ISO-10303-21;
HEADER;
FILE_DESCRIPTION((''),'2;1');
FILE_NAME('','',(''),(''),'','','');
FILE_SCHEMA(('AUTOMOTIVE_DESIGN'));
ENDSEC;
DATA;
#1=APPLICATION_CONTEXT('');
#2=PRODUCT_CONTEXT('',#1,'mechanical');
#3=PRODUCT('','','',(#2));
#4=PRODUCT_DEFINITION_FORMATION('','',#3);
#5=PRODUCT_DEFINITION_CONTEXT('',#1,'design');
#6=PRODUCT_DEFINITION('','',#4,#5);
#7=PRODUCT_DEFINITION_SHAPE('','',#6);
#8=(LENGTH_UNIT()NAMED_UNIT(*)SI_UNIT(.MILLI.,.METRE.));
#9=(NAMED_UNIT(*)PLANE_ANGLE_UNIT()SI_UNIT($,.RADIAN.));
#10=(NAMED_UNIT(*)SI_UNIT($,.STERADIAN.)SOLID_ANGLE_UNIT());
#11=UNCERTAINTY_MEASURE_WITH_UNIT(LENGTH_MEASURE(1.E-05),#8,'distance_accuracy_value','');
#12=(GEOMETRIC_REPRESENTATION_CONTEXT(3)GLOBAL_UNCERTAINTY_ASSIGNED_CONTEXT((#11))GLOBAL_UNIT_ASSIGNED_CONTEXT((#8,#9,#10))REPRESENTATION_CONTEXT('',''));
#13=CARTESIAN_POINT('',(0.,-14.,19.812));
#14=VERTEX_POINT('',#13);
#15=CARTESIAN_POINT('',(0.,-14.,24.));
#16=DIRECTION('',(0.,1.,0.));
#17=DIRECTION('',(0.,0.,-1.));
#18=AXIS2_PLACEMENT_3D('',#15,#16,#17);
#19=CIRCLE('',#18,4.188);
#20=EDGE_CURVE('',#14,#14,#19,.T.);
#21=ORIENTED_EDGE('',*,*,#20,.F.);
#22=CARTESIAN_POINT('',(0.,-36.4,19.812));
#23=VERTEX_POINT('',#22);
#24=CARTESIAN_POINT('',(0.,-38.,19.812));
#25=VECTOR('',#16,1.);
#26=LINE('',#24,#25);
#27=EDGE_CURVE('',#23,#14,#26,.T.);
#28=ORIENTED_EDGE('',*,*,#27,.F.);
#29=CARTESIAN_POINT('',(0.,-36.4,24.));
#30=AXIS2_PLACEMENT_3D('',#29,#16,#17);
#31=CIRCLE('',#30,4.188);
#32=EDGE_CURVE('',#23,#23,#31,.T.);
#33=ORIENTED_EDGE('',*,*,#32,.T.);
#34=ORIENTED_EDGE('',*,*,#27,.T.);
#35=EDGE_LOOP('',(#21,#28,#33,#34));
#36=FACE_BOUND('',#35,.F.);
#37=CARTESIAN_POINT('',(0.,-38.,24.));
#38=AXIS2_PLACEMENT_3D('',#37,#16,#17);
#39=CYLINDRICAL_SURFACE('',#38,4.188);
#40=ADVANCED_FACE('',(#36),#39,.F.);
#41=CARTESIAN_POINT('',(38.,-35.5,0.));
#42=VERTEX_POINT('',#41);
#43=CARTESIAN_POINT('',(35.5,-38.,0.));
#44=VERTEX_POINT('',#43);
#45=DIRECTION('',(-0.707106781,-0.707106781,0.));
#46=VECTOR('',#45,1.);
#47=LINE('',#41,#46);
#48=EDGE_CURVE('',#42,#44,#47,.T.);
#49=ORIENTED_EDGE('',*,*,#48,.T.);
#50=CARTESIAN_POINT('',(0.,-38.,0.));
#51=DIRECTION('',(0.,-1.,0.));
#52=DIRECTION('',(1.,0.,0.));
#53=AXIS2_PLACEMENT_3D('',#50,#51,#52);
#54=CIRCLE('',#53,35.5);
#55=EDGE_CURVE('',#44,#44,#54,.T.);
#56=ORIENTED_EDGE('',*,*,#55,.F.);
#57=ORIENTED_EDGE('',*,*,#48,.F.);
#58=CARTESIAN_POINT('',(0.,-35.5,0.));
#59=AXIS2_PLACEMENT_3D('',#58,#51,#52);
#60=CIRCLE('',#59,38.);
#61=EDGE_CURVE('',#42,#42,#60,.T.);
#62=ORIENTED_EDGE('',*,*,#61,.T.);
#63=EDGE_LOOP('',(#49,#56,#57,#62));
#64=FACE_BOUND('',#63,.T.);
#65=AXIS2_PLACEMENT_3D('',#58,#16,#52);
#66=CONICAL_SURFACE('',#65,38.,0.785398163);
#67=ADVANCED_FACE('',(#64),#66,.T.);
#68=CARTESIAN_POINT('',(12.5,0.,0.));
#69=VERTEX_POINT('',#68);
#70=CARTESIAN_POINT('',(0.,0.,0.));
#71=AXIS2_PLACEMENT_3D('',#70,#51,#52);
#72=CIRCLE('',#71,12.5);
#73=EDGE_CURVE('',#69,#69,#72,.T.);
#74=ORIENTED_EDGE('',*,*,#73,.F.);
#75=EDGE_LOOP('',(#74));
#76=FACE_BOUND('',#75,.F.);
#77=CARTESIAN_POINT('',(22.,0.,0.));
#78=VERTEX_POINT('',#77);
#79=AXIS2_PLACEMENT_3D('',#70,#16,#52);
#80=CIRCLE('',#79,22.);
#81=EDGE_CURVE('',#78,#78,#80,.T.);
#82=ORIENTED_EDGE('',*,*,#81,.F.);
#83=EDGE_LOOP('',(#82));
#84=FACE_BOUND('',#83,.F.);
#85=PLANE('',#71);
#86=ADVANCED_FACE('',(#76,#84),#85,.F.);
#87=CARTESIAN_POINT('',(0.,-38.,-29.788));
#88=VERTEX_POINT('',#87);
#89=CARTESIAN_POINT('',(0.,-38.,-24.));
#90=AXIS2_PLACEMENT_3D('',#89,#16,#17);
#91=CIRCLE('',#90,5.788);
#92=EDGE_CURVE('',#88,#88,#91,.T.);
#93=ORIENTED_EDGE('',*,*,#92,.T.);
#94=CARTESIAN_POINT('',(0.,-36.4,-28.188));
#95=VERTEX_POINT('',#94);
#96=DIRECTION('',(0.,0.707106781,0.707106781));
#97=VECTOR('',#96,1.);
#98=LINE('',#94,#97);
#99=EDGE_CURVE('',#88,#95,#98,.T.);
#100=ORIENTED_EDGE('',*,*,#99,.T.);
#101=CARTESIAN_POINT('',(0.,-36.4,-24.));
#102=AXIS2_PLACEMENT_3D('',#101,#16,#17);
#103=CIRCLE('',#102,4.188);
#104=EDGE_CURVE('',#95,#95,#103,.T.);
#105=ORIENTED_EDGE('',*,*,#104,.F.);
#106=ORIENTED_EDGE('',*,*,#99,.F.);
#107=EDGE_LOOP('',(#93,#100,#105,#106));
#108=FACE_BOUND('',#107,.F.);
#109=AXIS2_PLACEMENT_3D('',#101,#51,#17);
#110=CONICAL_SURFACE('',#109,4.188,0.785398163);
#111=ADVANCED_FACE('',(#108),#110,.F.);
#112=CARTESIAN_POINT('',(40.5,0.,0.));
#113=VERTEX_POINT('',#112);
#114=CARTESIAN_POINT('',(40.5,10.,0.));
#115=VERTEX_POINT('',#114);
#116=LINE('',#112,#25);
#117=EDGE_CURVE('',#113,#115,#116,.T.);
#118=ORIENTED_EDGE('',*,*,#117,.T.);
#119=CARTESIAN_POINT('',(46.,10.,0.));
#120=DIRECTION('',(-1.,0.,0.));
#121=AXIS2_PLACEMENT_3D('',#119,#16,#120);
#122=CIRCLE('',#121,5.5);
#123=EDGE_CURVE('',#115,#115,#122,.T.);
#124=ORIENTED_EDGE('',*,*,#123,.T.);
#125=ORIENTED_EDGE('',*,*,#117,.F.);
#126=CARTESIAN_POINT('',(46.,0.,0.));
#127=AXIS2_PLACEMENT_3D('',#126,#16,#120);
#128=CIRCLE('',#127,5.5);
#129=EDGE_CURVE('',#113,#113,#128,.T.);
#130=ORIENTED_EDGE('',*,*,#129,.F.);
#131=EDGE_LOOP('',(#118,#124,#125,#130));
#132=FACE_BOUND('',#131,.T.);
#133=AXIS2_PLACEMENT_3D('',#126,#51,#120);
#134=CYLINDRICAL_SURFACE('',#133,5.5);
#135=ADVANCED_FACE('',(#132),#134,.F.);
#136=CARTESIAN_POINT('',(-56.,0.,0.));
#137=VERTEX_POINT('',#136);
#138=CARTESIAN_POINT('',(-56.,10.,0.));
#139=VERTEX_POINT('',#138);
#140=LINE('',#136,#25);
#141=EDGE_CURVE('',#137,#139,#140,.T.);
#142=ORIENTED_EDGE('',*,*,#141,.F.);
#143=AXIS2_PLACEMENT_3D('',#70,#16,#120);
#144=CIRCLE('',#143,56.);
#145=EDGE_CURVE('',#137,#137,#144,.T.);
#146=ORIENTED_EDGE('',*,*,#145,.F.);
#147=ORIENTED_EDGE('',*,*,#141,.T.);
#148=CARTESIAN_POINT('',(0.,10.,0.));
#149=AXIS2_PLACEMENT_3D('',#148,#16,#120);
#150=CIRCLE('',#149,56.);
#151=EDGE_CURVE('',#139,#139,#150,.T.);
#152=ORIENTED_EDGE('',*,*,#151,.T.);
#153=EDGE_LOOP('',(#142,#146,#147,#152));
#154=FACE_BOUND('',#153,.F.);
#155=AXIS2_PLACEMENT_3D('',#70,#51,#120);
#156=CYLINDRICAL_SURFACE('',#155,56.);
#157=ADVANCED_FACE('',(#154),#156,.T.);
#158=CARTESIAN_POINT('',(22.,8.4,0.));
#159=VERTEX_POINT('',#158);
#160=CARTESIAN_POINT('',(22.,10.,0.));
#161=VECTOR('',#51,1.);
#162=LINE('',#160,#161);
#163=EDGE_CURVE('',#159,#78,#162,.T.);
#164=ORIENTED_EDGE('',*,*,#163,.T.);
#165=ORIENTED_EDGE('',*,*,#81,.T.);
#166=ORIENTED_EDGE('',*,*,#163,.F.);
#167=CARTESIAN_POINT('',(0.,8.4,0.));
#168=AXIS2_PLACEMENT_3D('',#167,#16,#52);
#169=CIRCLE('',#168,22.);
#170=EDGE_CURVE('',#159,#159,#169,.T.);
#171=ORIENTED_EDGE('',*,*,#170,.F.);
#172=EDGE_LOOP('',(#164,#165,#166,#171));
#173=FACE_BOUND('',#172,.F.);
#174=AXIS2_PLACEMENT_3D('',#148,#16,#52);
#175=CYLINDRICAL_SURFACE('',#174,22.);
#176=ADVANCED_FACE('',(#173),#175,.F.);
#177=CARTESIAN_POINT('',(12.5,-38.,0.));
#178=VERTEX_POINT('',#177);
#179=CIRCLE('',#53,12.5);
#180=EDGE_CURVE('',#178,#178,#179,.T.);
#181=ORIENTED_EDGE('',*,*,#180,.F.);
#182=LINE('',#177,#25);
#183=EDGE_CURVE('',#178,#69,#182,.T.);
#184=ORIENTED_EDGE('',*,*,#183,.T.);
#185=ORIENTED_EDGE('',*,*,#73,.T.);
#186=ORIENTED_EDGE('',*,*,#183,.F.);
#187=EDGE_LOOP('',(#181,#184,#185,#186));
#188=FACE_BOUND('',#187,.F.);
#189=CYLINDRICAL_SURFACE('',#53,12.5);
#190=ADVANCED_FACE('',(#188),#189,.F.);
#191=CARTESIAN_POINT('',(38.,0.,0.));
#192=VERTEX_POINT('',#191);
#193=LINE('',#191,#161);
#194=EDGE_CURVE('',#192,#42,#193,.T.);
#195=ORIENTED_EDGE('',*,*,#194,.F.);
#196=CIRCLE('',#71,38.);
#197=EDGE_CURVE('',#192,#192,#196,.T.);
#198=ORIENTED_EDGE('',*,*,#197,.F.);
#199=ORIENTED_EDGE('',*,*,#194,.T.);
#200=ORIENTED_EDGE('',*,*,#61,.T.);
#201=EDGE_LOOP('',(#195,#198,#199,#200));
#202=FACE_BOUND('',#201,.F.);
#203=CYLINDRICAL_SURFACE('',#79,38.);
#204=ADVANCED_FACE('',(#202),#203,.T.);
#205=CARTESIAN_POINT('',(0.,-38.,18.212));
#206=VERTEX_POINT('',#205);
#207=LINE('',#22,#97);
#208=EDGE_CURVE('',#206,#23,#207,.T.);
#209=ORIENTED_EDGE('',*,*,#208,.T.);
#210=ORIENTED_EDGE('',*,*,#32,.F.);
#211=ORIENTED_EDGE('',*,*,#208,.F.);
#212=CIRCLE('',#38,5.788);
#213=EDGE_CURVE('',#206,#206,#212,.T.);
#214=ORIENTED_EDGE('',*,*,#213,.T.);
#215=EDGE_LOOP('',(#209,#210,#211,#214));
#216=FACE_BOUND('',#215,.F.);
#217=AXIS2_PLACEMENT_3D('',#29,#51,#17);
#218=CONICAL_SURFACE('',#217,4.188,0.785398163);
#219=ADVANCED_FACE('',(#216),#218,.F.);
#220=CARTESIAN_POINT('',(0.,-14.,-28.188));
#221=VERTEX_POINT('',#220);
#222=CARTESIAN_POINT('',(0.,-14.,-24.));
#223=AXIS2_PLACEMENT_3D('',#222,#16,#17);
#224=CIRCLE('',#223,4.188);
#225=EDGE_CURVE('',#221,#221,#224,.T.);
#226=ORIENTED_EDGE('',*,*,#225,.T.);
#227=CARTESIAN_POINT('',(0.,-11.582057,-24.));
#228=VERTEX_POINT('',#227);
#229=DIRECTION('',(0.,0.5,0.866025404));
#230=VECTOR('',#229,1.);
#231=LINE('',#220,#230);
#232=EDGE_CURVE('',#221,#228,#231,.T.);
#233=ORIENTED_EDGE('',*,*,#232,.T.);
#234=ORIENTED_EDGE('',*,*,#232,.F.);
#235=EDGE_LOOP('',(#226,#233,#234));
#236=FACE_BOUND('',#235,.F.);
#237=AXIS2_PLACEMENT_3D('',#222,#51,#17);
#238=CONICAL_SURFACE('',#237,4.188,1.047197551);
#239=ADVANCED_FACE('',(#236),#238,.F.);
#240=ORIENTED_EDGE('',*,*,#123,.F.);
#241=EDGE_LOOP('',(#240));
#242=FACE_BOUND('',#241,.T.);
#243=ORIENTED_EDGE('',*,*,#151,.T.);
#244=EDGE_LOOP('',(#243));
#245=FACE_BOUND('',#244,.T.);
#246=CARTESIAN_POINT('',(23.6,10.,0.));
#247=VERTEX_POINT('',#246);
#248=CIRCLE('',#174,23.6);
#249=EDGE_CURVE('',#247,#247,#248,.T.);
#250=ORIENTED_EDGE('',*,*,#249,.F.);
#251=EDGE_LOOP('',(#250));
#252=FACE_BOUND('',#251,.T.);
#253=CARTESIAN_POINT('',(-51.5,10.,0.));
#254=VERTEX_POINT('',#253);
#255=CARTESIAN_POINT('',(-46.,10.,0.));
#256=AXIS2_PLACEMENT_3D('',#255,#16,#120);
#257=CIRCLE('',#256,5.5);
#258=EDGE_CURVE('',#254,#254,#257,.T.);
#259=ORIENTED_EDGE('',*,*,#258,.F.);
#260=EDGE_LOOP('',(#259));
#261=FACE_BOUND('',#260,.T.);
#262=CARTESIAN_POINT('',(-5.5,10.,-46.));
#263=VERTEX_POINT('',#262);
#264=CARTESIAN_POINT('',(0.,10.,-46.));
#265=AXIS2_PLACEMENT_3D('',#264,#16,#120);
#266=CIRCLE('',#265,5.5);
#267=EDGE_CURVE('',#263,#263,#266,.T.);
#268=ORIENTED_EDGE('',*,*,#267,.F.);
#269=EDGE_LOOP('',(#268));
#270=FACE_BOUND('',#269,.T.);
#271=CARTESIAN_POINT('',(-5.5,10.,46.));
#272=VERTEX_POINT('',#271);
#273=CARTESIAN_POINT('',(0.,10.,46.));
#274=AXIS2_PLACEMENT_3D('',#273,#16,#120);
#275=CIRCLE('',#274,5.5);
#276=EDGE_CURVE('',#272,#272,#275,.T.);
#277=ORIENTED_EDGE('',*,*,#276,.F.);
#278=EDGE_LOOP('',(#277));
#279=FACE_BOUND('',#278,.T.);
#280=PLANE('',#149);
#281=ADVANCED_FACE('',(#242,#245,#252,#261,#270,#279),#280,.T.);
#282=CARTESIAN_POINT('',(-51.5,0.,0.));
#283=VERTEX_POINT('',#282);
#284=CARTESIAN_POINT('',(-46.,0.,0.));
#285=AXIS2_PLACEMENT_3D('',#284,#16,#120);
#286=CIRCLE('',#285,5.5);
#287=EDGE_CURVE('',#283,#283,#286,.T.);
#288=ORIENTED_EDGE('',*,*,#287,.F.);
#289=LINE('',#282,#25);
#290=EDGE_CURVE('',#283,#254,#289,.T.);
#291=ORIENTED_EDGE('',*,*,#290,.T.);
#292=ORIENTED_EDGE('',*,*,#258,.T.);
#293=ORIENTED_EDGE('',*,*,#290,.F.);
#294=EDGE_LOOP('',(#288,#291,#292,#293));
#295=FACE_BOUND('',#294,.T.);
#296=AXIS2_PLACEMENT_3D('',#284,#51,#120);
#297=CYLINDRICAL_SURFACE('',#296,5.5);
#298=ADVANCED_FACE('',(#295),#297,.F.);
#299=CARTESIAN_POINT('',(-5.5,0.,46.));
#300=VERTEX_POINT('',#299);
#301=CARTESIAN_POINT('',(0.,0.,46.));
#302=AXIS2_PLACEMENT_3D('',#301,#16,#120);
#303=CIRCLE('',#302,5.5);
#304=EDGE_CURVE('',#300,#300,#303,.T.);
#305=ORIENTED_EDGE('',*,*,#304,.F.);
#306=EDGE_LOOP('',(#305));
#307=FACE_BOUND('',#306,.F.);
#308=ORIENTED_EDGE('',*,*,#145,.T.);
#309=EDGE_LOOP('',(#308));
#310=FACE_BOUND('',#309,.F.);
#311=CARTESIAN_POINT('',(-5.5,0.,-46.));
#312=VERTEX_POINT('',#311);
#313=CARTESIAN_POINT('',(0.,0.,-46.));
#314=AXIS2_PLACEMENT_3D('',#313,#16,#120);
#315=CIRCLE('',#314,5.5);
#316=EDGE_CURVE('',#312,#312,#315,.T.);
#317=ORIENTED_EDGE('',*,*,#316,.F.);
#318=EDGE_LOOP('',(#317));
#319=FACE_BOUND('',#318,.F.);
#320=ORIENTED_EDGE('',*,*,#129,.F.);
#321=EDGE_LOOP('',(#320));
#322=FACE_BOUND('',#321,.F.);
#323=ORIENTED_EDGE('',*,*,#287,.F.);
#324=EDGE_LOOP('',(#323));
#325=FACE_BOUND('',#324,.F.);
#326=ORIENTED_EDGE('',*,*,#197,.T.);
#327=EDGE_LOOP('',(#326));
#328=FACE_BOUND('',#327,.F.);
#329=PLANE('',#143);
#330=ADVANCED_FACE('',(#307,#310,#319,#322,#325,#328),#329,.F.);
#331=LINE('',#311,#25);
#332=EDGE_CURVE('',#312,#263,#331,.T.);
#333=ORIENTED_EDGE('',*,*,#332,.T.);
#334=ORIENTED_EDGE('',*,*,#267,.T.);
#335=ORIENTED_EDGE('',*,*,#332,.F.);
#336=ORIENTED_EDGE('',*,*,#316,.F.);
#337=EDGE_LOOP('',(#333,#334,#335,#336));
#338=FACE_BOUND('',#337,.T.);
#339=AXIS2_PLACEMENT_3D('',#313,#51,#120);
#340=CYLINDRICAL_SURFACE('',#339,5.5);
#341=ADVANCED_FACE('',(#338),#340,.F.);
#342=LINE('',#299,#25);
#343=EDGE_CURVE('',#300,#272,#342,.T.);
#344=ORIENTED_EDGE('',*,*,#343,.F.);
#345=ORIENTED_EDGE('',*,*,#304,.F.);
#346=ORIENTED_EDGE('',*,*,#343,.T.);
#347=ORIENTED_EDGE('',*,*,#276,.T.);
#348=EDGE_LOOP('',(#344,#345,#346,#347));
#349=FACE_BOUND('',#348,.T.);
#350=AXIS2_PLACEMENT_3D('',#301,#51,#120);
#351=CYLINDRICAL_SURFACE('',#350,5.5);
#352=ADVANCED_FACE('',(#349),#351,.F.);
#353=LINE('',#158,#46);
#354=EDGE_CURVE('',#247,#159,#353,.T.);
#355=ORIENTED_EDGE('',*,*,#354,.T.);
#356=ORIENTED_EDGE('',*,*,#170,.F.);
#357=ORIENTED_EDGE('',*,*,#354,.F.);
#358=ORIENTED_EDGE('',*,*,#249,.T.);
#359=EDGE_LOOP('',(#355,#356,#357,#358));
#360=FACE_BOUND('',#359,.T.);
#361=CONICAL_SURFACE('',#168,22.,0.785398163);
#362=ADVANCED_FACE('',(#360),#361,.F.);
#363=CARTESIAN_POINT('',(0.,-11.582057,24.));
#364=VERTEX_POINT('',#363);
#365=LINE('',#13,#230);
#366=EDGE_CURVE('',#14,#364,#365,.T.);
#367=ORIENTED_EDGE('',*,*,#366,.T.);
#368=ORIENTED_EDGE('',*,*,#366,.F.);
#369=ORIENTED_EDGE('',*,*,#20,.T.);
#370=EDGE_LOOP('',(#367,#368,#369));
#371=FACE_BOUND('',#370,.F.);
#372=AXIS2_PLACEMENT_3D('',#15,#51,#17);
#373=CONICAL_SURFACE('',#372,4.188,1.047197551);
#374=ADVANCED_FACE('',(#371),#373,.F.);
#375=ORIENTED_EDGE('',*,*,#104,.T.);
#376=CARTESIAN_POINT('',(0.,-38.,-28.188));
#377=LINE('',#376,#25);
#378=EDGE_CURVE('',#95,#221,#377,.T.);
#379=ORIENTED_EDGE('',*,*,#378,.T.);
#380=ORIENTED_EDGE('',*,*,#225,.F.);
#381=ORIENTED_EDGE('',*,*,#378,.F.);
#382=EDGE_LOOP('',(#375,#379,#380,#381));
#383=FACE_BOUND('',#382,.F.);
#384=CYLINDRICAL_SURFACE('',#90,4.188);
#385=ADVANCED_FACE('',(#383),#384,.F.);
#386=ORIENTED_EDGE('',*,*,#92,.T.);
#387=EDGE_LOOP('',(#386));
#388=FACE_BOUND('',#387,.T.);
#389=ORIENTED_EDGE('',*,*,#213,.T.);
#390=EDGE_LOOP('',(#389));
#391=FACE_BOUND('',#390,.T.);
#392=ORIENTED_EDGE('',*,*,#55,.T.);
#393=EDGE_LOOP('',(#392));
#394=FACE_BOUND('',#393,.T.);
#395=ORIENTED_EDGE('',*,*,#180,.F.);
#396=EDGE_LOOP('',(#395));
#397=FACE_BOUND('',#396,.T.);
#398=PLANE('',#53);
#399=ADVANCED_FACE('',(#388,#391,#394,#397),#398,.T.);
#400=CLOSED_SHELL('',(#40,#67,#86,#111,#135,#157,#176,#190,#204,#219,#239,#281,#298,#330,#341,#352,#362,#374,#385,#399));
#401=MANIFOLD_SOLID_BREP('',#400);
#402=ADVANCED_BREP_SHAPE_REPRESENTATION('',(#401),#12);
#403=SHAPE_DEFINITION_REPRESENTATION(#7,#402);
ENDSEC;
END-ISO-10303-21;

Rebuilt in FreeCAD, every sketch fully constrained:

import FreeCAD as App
import Part
import Sketcher

V = App.Vector
Q = App.Units.Quantity


def edges_at(feature, points):
    """Names of the edges that pass closest to the given points."""
    edges = feature.Shape.Edges
    near = lambda p: min(range(len(edges)), key=lambda i: edges[i].distToShape(Part.Vertex(*p))[0])
    return sorted({f"Edge{near(p) + 1}" for p in points})

doc = App.newDocument("Part")
body = doc.addObject("PartDesign::Body", "Body")

# Sketch on XZ plane
sketch1 = body.newObject("Sketcher::SketchObject", "Sketch")
sketch1.AttachmentSupport = (doc.getObject("XZ_Plane"), [""])
sketch1.MapMode = "FlatFace"
sketch1.addGeometry(Part.Circle(V(0, 0, 0), V(0, 0, 1), 56), False)
sketch1.addGeometry(Part.Circle(V(0, -46, 0), V(0, 0, 1), 6), False)
sketch1.addGeometry(Part.Circle(V(46, 0, 0), V(0, 0, 1), 6), False)
sketch1.addGeometry(Part.Circle(V(-46, 0, 0), V(0, 0, 1), 6), False)
sketch1.addGeometry(Part.Circle(V(0, 46, 0), V(0, 0, 1), 6), False)
sketch1.addConstraint(Sketcher.Constraint("Coincident", 0, 3, -1, 1))
sketch1.addConstraint(Sketcher.Constraint("Equal", 1, 2))
sketch1.addConstraint(Sketcher.Constraint("Equal", 2, 3))
sketch1.addConstraint(Sketcher.Constraint("Equal", 3, 4))
sketch1.addConstraint(Sketcher.Constraint("Symmetric", 2, 3, 3, 3, -1, 1))
sketch1.addConstraint(Sketcher.Constraint("Symmetric", 1, 3, 4, 3, -1, 1))
sketch1.addConstraint(Sketcher.Constraint("PointOnObject", 1, 3, -2))
sketch1.addConstraint(Sketcher.Constraint("PointOnObject", 2, 3, -1))
sketch1.addConstraint(Sketcher.Constraint("Diameter", 0, Q("112 mm")))
sketch1.addConstraint(Sketcher.Constraint("Diameter", 1, Q("11 mm")))
sketch1.addConstraint(Sketcher.Constraint("DistanceY", 1, 3, -1, 1, Q("46 mm")))
sketch1.addConstraint(Sketcher.Constraint("DistanceX", -1, 1, 2, 3, Q("46 mm")))
pad1 = body.newObject("PartDesign::Pad", "Pad")
pad1.Profile = sketch1
pad1.Length = 10
pad1.Reversed = True

# Sketch on XZ plane
sketch2 = body.newObject("Sketcher::SketchObject", "Sketch001")
sketch2.AttachmentSupport = (doc.getObject("XZ_Plane"), [""])
sketch2.MapMode = "FlatFace"
sketch2.AttachmentOffset = App.Placement(V(0, 0, -10), App.Rotation())
sketch2.addGeometry(Part.Circle(V(0, 0, 0), V(0, 0, 1), 22), False)
sketch2.addConstraint(Sketcher.Constraint("Coincident", 0, 3, -1, 1))
sketch2.addConstraint(Sketcher.Constraint("Diameter", 0, Q("44 mm")))
pocket1 = body.newObject("PartDesign::Pocket", "Pocket")
pocket1.Profile = sketch2
pocket1.Length = 10
pocket1.Reversed = True

# Sketch on XZ plane
sketch3 = body.newObject("Sketcher::SketchObject", "Sketch002")
sketch3.AttachmentSupport = (doc.getObject("XZ_Plane"), [""])
sketch3.MapMode = "FlatFace"
sketch3.addGeometry(Part.Circle(V(0, 0, 0), V(0, 0, 1), 38), False)
sketch3.addConstraint(Sketcher.Constraint("Coincident", 0, 3, -1, 1))
sketch3.addConstraint(Sketcher.Constraint("Diameter", 0, Q("76 mm")))
pad2 = body.newObject("PartDesign::Pad", "Pad001")
pad2.Profile = sketch3
pad2.Length = 38

# Sketch on XZ plane
sketch4 = body.newObject("Sketcher::SketchObject", "Sketch003")
sketch4.AttachmentSupport = (doc.getObject("XZ_Plane"), [""])
sketch4.MapMode = "FlatFace"
sketch4.AttachmentOffset = App.Placement(V(0, 0, 38), App.Rotation())
sketch4.addGeometry(Part.Circle(V(0, 0, 0), V(0, 0, 1), 12), False)
sketch4.addConstraint(Sketcher.Constraint("Coincident", 0, 3, -1, 1))
sketch4.addConstraint(Sketcher.Constraint("Diameter", 0, Q("25 mm")))
pocket2 = body.newObject("PartDesign::Pocket", "Pocket001")
pocket2.Profile = sketch4
pocket2.Type = "ThroughAll"
doc.recompute()

chamfer = body.newObject("PartDesign::Chamfer", "Chamfer")
chamfer.Base = (pocket2, edges_at(pocket2, [(-22, 10, 0)]))
chamfer.Size = 1.6
doc.recompute()

chamfer2 = body.newObject("PartDesign::Chamfer", "Chamfer001")
chamfer2.Base = (chamfer, edges_at(chamfer, [(-38, -38, 0)]))
chamfer2.Size = 2.5

# Sketch on XZ plane
sketch5 = body.newObject("Sketcher::SketchObject", "Sketch004")
sketch5.AttachmentSupport = (doc.getObject("XZ_Plane"), [""])
sketch5.MapMode = "FlatFace"
sketch5.AttachmentOffset = App.Placement(V(0, 0, 38), App.Rotation())
sketch5.addGeometry(Part.Circle(V(0, -24, 0), V(0, 0, 1), 4.2), False)
sketch5.addGeometry(Part.Circle(V(0, 24, 0), V(0, 0, 1), 4.2), False)
sketch5.addConstraint(Sketcher.Constraint("Equal", 0, 1))
sketch5.addConstraint(Sketcher.Constraint("Symmetric", 0, 3, 1, 3, -1, 1))
sketch5.addConstraint(Sketcher.Constraint("PointOnObject", 0, 3, -2))
sketch5.addConstraint(Sketcher.Constraint("Diameter", 0, Q("8.376 mm")))
sketch5.addConstraint(Sketcher.Constraint("DistanceY", 0, 3, -1, 1, Q("24 mm")))
doc.recompute()
hole = body.newObject("PartDesign::Hole", "Hole")
hole.Profile = sketch5
hole.ThreadType = "None"
hole.Diameter = 8.376
hole.DepthType = "Dimension"
hole.Depth = 24
hole.DrillPoint = "Angled"
hole.DrillPointAngle = 120
doc.recompute()

chamfer3 = body.newObject("PartDesign::Chamfer", "Chamfer002")
chamfer3.Base = (hole, edges_at(hole, [(0, -38, -19.812), (0, -38, 28.188)]))
chamfer3.Size = 1.6

doc.recompute()
